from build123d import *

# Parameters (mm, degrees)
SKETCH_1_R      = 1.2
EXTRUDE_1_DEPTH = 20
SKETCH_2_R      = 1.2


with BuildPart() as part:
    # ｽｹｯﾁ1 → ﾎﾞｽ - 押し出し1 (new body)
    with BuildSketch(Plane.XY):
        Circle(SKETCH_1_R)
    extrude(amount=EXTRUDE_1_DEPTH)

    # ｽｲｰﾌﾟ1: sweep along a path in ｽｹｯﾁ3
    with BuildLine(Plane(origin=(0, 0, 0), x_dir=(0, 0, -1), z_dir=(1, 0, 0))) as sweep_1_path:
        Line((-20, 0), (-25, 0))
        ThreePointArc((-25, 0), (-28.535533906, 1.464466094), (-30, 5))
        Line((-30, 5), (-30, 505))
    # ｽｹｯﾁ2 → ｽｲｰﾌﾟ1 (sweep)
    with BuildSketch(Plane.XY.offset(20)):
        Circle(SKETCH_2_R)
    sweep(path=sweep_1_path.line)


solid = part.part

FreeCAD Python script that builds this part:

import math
import FreeCAD as App
import Part
import Sketcher
from FreeCAD import Vector
Q = App.Units.Quantity

doc = App.newDocument("Part")
body = doc.addObject("PartDesign::Body", "Body")

# Sketch on XY plane
sketch1 = body.newObject("Sketcher::SketchObject", "Sketch")
sketch1.AttachmentSupport = (doc.getObject("XY_Plane"), [""])
sketch1.MapMode = "FlatFace"
sketch1.addGeometry(Part.Circle(Vector(0, 0, 0), Vector(0, 0, 1), 1.2), False)
sketch1.addConstraint([
    Sketcher.Constraint("Coincident", 0, 3, -1, 1),
    Sketcher.Constraint("Diameter", 0, Q("2.4 mm")),
])
pad1 = body.newObject("PartDesign::Pad", "Pad")
pad1.Profile = sketch1
pad1.Length = 20

# Sketch on XY plane
sketch2 = body.newObject("Sketcher::SketchObject", "Sketch001")
sketch2.AttachmentSupport = (doc.getObject("XY_Plane"), [""])
sketch2.MapMode = "FlatFace"
sketch2.AttachmentOffset = App.Placement(Vector(0, 0, 20), App.Rotation())
sketch2.addGeometry(Part.Circle(Vector(0, 0, 0), Vector(0, 0, 1), 1.2), False)
sketch2.addConstraint([
    Sketcher.Constraint("Coincident", 0, 3, -1, 1),
    Sketcher.Constraint("Diameter", 0, Q("2.4 mm")),
])

# Sketch on YZ plane
sketch3 = body.newObject("Sketcher::SketchObject", "Sketch002")
sketch3.AttachmentSupport = (doc.getObject("YZ_Plane"), [""])
sketch3.MapMode = "FlatFace"
sketch3.addGeometry([
    Part.LineSegment(Vector(0, 20, 0), Vector(0, 25, 0)),
    Part.ArcOfCircle(Part.Circle(Vector(5, 25, 0), Vector(0, 0, 1), 5), math.radians(90), math.radians(180)),
    Part.LineSegment(Vector(5, 30, 0), Vector(505, 30, 0)),
], False)
sketch3.addConstraint([
    Sketcher.Constraint("Tangent", 0, 2, 1, 2),
    Sketcher.Constraint("Tangent", 1, 1, 2, 1),
    Sketcher.Constraint("Vertical", 0),
    Sketcher.Constraint("Horizontal", 2),
    Sketcher.Constraint("PointOnObject", 0, 1, -2),
    Sketcher.Constraint("Radius", 1, Q("5 mm")),
    Sketcher.Constraint("DistanceX", 2, 1, 2, 2, Q("500 mm")),
    Sketcher.Constraint("DistanceY", 0, 1, 0, 2, Q("5 mm")),
    Sketcher.Constraint("DistanceY", -1, 1, 1, 3, Q("25 mm")),
])
doc.recompute()

additivepipe = body.newObject("PartDesign::AdditivePipe", "AdditivePipe")
additivepipe.Profile = sketch2
additivepipe.Spine = (sketch3, ["Edge1", "Edge2", "Edge3"])

doc.recompute()
